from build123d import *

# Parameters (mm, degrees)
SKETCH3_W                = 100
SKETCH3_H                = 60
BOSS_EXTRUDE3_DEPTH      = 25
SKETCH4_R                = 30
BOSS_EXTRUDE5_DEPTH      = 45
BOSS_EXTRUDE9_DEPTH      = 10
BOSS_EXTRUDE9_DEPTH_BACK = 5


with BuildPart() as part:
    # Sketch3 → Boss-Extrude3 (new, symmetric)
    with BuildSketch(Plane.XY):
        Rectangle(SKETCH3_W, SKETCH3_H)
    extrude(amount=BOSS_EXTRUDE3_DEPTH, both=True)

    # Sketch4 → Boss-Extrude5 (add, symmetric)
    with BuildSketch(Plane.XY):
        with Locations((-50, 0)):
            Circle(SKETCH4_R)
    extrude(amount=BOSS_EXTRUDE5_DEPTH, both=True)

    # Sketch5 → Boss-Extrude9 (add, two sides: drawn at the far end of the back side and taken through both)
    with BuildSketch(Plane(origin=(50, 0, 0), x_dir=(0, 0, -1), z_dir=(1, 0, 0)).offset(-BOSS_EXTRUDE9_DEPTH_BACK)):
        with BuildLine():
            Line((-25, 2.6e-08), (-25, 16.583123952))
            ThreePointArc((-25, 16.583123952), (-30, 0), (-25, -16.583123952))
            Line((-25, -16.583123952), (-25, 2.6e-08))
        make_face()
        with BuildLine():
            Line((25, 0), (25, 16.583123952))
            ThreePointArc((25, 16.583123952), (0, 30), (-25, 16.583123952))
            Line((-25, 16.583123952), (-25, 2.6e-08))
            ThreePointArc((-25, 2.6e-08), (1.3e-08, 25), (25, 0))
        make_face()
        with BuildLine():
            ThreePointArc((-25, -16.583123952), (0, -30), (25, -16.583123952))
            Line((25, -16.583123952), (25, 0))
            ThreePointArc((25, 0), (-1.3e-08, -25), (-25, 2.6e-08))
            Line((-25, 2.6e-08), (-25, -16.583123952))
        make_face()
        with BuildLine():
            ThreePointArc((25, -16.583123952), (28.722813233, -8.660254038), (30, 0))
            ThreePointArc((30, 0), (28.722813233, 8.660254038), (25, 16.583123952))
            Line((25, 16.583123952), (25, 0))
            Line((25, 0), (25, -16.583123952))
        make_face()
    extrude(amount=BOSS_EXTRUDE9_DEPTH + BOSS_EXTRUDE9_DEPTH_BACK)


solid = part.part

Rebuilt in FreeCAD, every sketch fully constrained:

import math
import FreeCAD as App
import Part
import Sketcher

V = App.Vector
Q = App.Units.Quantity

doc = App.newDocument("Part")
body = doc.addObject("PartDesign::Body", "Body")

# Sketch on XY plane
sketch1 = body.newObject("Sketcher::SketchObject", "Sketch")
sketch1.AttachmentSupport = (doc.getObject("XY_Plane"), [""])
sketch1.MapMode = "FlatFace"
sketch1.addGeometry(Part.LineSegment(V(-50, 30, 0), V(-50, -30, 0)), False)
sketch1.addGeometry(Part.LineSegment(V(-50, -30, 0), V(50, -30, 0)), False)
sketch1.addGeometry(Part.LineSegment(V(50, -30, 0), V(50, 30, 0)), False)
sketch1.addGeometry(Part.LineSegment(V(50, 30, 0), V(-50, 30, 0)), False)
sketch1.addConstraint(Sketcher.Constraint("Coincident", 0, 2, 1, 1))
sketch1.addConstraint(Sketcher.Constraint("Coincident", 1, 2, 2, 1))
sketch1.addConstraint(Sketcher.Constraint("Coincident", 2, 2, 3, 1))
sketch1.addConstraint(Sketcher.Constraint("Coincident", 3, 2, 0, 1))
sketch1.addConstraint(Sketcher.Constraint("Vertical", 0))
sketch1.addConstraint(Sketcher.Constraint("Horizontal", 1))
sketch1.addConstraint(Sketcher.Constraint("Vertical", 2))
sketch1.addConstraint(Sketcher.Constraint("Horizontal", 3))
sketch1.addConstraint(Sketcher.Constraint("Symmetric", 0, 2, 2, 2, -1, 1))
sketch1.addConstraint(Sketcher.Constraint("DistanceX", 1, 1, 1, 2, Q("100 mm")))
sketch1.addConstraint(Sketcher.Constraint("DistanceY", 0, 2, 0, 1, Q("60 mm")))
pad1 = body.newObject("PartDesign::Pad", "Pad")
pad1.Profile = sketch1
pad1.Length = 50
pad1.Midplane = True

# Sketch on XY plane
sketch2 = body.newObject("Sketcher::SketchObject", "Sketch001")
sketch2.AttachmentSupport = (doc.getObject("XY_Plane"), [""])
sketch2.MapMode = "FlatFace"
sketch2.addGeometry(Part.Circle(V(-50, 0, 0), V(0, 0, 1), 30), False)
sketch2.addConstraint(Sketcher.Constraint("PointOnObject", 0, 3, -1))
sketch2.addConstraint(Sketcher.Constraint("Diameter", 0, Q("60 mm")))
sketch2.addConstraint(Sketcher.Constraint("DistanceX", 0, 3, -1, 1, Q("50 mm")))
pad2 = body.newObject("PartDesign::Pad", "Pad001")
pad2.Profile = sketch2
pad2.Length = 90
pad2.Midplane = True

# Sketch on YZ plane
sketch3 = body.newObject("Sketcher::SketchObject", "Sketch002")
sketch3.AttachmentSupport = (doc.getObject("YZ_Plane"), [""])
sketch3.MapMode = "FlatFace"
sketch3.AttachmentOffset = App.Placement(V(0, 0, 50), App.Rotation())
sketch3.addGeometry(Part.ArcOfCircle(Part.Circle(V(0, 0, 0), V(0, 0, 1), 30), math.radians(-56), math.radians(56)), False)
sketch3.addGeometry(Part.ArcOfCircle(Part.Circle(V(0, 0, 0), V(0, 0, 1), 30), math.radians(56), math.radians(124)), False)
sketch3.addGeometry(Part.ArcOfCircle(Part.Circle(V(0, 0, 0), V(0, 0, 1), 30), math.radians(124), math.radians(236)), False)
sketch3.addGeometry(Part.ArcOfCircle(Part.Circle(V(0, 0, 0), V(0, 0, 1), 30), math.radians(-124), math.radians(-90)), False)
sketch3.addGeometry(Part.ArcOfCircle(Part.Circle(V(0, 0, 0), V(0, 0, 1), 30), math.radians(-90), math.radians(-56)), False)
sketch3.addGeometry(Part.Circle(V(0, 0, 0), V(0, 0, 1), 25), False)
sketch3.addConstraint(Sketcher.Constraint("Tangent", 0, 2, 1, 1))
sketch3.addConstraint(Sketcher.Constraint("Tangent", 1, 2, 2, 1))
sketch3.addConstraint(Sketcher.Constraint("Tangent", 2, 2, 3, 1))
sketch3.addConstraint(Sketcher.Constraint("Tangent", 3, 2, 4, 1))
sketch3.addConstraint(Sketcher.Constraint("Tangent", 4, 2, 0, 1))
sketch3.addConstraint(Sketcher.Constraint("Coincident", 0, 3, -1, 1))
sketch3.addConstraint(Sketcher.Constraint("Coincident", 2, 3, -1, 1))
sketch3.addConstraint(Sketcher.Constraint("Coincident", 5, 3, -1, 1))
sketch3.addConstraint(Sketcher.Constraint("PointOnObject", 3, 2, -2))
sketch3.addConstraint(Sketcher.Constraint("Horizontal", 0, 2, 1, 2))
sketch3.addConstraint(Sketcher.Constraint("Horizontal", 2, 2, 4, 2))
sketch3.addConstraint(Sketcher.Constraint("Vertical", 1, 2, 2, 2))
sketch3.addConstraint(Sketcher.Constraint("Diameter", 5, Q("50 mm")))
sketch3.addConstraint(Sketcher.Constraint("Radius", 0, Q("30 mm")))
sketch3.addConstraint(Sketcher.Constraint("DistanceY", -1, 1, 0, 2, Q("25 mm")))
pad3 = body.newObject("PartDesign::Pad", "Pad002")
pad3.Profile = sketch3
pad3.Type = "TwoLengths"
pad3.Length = 10
pad3.Length2 = 5

doc.recompute()
